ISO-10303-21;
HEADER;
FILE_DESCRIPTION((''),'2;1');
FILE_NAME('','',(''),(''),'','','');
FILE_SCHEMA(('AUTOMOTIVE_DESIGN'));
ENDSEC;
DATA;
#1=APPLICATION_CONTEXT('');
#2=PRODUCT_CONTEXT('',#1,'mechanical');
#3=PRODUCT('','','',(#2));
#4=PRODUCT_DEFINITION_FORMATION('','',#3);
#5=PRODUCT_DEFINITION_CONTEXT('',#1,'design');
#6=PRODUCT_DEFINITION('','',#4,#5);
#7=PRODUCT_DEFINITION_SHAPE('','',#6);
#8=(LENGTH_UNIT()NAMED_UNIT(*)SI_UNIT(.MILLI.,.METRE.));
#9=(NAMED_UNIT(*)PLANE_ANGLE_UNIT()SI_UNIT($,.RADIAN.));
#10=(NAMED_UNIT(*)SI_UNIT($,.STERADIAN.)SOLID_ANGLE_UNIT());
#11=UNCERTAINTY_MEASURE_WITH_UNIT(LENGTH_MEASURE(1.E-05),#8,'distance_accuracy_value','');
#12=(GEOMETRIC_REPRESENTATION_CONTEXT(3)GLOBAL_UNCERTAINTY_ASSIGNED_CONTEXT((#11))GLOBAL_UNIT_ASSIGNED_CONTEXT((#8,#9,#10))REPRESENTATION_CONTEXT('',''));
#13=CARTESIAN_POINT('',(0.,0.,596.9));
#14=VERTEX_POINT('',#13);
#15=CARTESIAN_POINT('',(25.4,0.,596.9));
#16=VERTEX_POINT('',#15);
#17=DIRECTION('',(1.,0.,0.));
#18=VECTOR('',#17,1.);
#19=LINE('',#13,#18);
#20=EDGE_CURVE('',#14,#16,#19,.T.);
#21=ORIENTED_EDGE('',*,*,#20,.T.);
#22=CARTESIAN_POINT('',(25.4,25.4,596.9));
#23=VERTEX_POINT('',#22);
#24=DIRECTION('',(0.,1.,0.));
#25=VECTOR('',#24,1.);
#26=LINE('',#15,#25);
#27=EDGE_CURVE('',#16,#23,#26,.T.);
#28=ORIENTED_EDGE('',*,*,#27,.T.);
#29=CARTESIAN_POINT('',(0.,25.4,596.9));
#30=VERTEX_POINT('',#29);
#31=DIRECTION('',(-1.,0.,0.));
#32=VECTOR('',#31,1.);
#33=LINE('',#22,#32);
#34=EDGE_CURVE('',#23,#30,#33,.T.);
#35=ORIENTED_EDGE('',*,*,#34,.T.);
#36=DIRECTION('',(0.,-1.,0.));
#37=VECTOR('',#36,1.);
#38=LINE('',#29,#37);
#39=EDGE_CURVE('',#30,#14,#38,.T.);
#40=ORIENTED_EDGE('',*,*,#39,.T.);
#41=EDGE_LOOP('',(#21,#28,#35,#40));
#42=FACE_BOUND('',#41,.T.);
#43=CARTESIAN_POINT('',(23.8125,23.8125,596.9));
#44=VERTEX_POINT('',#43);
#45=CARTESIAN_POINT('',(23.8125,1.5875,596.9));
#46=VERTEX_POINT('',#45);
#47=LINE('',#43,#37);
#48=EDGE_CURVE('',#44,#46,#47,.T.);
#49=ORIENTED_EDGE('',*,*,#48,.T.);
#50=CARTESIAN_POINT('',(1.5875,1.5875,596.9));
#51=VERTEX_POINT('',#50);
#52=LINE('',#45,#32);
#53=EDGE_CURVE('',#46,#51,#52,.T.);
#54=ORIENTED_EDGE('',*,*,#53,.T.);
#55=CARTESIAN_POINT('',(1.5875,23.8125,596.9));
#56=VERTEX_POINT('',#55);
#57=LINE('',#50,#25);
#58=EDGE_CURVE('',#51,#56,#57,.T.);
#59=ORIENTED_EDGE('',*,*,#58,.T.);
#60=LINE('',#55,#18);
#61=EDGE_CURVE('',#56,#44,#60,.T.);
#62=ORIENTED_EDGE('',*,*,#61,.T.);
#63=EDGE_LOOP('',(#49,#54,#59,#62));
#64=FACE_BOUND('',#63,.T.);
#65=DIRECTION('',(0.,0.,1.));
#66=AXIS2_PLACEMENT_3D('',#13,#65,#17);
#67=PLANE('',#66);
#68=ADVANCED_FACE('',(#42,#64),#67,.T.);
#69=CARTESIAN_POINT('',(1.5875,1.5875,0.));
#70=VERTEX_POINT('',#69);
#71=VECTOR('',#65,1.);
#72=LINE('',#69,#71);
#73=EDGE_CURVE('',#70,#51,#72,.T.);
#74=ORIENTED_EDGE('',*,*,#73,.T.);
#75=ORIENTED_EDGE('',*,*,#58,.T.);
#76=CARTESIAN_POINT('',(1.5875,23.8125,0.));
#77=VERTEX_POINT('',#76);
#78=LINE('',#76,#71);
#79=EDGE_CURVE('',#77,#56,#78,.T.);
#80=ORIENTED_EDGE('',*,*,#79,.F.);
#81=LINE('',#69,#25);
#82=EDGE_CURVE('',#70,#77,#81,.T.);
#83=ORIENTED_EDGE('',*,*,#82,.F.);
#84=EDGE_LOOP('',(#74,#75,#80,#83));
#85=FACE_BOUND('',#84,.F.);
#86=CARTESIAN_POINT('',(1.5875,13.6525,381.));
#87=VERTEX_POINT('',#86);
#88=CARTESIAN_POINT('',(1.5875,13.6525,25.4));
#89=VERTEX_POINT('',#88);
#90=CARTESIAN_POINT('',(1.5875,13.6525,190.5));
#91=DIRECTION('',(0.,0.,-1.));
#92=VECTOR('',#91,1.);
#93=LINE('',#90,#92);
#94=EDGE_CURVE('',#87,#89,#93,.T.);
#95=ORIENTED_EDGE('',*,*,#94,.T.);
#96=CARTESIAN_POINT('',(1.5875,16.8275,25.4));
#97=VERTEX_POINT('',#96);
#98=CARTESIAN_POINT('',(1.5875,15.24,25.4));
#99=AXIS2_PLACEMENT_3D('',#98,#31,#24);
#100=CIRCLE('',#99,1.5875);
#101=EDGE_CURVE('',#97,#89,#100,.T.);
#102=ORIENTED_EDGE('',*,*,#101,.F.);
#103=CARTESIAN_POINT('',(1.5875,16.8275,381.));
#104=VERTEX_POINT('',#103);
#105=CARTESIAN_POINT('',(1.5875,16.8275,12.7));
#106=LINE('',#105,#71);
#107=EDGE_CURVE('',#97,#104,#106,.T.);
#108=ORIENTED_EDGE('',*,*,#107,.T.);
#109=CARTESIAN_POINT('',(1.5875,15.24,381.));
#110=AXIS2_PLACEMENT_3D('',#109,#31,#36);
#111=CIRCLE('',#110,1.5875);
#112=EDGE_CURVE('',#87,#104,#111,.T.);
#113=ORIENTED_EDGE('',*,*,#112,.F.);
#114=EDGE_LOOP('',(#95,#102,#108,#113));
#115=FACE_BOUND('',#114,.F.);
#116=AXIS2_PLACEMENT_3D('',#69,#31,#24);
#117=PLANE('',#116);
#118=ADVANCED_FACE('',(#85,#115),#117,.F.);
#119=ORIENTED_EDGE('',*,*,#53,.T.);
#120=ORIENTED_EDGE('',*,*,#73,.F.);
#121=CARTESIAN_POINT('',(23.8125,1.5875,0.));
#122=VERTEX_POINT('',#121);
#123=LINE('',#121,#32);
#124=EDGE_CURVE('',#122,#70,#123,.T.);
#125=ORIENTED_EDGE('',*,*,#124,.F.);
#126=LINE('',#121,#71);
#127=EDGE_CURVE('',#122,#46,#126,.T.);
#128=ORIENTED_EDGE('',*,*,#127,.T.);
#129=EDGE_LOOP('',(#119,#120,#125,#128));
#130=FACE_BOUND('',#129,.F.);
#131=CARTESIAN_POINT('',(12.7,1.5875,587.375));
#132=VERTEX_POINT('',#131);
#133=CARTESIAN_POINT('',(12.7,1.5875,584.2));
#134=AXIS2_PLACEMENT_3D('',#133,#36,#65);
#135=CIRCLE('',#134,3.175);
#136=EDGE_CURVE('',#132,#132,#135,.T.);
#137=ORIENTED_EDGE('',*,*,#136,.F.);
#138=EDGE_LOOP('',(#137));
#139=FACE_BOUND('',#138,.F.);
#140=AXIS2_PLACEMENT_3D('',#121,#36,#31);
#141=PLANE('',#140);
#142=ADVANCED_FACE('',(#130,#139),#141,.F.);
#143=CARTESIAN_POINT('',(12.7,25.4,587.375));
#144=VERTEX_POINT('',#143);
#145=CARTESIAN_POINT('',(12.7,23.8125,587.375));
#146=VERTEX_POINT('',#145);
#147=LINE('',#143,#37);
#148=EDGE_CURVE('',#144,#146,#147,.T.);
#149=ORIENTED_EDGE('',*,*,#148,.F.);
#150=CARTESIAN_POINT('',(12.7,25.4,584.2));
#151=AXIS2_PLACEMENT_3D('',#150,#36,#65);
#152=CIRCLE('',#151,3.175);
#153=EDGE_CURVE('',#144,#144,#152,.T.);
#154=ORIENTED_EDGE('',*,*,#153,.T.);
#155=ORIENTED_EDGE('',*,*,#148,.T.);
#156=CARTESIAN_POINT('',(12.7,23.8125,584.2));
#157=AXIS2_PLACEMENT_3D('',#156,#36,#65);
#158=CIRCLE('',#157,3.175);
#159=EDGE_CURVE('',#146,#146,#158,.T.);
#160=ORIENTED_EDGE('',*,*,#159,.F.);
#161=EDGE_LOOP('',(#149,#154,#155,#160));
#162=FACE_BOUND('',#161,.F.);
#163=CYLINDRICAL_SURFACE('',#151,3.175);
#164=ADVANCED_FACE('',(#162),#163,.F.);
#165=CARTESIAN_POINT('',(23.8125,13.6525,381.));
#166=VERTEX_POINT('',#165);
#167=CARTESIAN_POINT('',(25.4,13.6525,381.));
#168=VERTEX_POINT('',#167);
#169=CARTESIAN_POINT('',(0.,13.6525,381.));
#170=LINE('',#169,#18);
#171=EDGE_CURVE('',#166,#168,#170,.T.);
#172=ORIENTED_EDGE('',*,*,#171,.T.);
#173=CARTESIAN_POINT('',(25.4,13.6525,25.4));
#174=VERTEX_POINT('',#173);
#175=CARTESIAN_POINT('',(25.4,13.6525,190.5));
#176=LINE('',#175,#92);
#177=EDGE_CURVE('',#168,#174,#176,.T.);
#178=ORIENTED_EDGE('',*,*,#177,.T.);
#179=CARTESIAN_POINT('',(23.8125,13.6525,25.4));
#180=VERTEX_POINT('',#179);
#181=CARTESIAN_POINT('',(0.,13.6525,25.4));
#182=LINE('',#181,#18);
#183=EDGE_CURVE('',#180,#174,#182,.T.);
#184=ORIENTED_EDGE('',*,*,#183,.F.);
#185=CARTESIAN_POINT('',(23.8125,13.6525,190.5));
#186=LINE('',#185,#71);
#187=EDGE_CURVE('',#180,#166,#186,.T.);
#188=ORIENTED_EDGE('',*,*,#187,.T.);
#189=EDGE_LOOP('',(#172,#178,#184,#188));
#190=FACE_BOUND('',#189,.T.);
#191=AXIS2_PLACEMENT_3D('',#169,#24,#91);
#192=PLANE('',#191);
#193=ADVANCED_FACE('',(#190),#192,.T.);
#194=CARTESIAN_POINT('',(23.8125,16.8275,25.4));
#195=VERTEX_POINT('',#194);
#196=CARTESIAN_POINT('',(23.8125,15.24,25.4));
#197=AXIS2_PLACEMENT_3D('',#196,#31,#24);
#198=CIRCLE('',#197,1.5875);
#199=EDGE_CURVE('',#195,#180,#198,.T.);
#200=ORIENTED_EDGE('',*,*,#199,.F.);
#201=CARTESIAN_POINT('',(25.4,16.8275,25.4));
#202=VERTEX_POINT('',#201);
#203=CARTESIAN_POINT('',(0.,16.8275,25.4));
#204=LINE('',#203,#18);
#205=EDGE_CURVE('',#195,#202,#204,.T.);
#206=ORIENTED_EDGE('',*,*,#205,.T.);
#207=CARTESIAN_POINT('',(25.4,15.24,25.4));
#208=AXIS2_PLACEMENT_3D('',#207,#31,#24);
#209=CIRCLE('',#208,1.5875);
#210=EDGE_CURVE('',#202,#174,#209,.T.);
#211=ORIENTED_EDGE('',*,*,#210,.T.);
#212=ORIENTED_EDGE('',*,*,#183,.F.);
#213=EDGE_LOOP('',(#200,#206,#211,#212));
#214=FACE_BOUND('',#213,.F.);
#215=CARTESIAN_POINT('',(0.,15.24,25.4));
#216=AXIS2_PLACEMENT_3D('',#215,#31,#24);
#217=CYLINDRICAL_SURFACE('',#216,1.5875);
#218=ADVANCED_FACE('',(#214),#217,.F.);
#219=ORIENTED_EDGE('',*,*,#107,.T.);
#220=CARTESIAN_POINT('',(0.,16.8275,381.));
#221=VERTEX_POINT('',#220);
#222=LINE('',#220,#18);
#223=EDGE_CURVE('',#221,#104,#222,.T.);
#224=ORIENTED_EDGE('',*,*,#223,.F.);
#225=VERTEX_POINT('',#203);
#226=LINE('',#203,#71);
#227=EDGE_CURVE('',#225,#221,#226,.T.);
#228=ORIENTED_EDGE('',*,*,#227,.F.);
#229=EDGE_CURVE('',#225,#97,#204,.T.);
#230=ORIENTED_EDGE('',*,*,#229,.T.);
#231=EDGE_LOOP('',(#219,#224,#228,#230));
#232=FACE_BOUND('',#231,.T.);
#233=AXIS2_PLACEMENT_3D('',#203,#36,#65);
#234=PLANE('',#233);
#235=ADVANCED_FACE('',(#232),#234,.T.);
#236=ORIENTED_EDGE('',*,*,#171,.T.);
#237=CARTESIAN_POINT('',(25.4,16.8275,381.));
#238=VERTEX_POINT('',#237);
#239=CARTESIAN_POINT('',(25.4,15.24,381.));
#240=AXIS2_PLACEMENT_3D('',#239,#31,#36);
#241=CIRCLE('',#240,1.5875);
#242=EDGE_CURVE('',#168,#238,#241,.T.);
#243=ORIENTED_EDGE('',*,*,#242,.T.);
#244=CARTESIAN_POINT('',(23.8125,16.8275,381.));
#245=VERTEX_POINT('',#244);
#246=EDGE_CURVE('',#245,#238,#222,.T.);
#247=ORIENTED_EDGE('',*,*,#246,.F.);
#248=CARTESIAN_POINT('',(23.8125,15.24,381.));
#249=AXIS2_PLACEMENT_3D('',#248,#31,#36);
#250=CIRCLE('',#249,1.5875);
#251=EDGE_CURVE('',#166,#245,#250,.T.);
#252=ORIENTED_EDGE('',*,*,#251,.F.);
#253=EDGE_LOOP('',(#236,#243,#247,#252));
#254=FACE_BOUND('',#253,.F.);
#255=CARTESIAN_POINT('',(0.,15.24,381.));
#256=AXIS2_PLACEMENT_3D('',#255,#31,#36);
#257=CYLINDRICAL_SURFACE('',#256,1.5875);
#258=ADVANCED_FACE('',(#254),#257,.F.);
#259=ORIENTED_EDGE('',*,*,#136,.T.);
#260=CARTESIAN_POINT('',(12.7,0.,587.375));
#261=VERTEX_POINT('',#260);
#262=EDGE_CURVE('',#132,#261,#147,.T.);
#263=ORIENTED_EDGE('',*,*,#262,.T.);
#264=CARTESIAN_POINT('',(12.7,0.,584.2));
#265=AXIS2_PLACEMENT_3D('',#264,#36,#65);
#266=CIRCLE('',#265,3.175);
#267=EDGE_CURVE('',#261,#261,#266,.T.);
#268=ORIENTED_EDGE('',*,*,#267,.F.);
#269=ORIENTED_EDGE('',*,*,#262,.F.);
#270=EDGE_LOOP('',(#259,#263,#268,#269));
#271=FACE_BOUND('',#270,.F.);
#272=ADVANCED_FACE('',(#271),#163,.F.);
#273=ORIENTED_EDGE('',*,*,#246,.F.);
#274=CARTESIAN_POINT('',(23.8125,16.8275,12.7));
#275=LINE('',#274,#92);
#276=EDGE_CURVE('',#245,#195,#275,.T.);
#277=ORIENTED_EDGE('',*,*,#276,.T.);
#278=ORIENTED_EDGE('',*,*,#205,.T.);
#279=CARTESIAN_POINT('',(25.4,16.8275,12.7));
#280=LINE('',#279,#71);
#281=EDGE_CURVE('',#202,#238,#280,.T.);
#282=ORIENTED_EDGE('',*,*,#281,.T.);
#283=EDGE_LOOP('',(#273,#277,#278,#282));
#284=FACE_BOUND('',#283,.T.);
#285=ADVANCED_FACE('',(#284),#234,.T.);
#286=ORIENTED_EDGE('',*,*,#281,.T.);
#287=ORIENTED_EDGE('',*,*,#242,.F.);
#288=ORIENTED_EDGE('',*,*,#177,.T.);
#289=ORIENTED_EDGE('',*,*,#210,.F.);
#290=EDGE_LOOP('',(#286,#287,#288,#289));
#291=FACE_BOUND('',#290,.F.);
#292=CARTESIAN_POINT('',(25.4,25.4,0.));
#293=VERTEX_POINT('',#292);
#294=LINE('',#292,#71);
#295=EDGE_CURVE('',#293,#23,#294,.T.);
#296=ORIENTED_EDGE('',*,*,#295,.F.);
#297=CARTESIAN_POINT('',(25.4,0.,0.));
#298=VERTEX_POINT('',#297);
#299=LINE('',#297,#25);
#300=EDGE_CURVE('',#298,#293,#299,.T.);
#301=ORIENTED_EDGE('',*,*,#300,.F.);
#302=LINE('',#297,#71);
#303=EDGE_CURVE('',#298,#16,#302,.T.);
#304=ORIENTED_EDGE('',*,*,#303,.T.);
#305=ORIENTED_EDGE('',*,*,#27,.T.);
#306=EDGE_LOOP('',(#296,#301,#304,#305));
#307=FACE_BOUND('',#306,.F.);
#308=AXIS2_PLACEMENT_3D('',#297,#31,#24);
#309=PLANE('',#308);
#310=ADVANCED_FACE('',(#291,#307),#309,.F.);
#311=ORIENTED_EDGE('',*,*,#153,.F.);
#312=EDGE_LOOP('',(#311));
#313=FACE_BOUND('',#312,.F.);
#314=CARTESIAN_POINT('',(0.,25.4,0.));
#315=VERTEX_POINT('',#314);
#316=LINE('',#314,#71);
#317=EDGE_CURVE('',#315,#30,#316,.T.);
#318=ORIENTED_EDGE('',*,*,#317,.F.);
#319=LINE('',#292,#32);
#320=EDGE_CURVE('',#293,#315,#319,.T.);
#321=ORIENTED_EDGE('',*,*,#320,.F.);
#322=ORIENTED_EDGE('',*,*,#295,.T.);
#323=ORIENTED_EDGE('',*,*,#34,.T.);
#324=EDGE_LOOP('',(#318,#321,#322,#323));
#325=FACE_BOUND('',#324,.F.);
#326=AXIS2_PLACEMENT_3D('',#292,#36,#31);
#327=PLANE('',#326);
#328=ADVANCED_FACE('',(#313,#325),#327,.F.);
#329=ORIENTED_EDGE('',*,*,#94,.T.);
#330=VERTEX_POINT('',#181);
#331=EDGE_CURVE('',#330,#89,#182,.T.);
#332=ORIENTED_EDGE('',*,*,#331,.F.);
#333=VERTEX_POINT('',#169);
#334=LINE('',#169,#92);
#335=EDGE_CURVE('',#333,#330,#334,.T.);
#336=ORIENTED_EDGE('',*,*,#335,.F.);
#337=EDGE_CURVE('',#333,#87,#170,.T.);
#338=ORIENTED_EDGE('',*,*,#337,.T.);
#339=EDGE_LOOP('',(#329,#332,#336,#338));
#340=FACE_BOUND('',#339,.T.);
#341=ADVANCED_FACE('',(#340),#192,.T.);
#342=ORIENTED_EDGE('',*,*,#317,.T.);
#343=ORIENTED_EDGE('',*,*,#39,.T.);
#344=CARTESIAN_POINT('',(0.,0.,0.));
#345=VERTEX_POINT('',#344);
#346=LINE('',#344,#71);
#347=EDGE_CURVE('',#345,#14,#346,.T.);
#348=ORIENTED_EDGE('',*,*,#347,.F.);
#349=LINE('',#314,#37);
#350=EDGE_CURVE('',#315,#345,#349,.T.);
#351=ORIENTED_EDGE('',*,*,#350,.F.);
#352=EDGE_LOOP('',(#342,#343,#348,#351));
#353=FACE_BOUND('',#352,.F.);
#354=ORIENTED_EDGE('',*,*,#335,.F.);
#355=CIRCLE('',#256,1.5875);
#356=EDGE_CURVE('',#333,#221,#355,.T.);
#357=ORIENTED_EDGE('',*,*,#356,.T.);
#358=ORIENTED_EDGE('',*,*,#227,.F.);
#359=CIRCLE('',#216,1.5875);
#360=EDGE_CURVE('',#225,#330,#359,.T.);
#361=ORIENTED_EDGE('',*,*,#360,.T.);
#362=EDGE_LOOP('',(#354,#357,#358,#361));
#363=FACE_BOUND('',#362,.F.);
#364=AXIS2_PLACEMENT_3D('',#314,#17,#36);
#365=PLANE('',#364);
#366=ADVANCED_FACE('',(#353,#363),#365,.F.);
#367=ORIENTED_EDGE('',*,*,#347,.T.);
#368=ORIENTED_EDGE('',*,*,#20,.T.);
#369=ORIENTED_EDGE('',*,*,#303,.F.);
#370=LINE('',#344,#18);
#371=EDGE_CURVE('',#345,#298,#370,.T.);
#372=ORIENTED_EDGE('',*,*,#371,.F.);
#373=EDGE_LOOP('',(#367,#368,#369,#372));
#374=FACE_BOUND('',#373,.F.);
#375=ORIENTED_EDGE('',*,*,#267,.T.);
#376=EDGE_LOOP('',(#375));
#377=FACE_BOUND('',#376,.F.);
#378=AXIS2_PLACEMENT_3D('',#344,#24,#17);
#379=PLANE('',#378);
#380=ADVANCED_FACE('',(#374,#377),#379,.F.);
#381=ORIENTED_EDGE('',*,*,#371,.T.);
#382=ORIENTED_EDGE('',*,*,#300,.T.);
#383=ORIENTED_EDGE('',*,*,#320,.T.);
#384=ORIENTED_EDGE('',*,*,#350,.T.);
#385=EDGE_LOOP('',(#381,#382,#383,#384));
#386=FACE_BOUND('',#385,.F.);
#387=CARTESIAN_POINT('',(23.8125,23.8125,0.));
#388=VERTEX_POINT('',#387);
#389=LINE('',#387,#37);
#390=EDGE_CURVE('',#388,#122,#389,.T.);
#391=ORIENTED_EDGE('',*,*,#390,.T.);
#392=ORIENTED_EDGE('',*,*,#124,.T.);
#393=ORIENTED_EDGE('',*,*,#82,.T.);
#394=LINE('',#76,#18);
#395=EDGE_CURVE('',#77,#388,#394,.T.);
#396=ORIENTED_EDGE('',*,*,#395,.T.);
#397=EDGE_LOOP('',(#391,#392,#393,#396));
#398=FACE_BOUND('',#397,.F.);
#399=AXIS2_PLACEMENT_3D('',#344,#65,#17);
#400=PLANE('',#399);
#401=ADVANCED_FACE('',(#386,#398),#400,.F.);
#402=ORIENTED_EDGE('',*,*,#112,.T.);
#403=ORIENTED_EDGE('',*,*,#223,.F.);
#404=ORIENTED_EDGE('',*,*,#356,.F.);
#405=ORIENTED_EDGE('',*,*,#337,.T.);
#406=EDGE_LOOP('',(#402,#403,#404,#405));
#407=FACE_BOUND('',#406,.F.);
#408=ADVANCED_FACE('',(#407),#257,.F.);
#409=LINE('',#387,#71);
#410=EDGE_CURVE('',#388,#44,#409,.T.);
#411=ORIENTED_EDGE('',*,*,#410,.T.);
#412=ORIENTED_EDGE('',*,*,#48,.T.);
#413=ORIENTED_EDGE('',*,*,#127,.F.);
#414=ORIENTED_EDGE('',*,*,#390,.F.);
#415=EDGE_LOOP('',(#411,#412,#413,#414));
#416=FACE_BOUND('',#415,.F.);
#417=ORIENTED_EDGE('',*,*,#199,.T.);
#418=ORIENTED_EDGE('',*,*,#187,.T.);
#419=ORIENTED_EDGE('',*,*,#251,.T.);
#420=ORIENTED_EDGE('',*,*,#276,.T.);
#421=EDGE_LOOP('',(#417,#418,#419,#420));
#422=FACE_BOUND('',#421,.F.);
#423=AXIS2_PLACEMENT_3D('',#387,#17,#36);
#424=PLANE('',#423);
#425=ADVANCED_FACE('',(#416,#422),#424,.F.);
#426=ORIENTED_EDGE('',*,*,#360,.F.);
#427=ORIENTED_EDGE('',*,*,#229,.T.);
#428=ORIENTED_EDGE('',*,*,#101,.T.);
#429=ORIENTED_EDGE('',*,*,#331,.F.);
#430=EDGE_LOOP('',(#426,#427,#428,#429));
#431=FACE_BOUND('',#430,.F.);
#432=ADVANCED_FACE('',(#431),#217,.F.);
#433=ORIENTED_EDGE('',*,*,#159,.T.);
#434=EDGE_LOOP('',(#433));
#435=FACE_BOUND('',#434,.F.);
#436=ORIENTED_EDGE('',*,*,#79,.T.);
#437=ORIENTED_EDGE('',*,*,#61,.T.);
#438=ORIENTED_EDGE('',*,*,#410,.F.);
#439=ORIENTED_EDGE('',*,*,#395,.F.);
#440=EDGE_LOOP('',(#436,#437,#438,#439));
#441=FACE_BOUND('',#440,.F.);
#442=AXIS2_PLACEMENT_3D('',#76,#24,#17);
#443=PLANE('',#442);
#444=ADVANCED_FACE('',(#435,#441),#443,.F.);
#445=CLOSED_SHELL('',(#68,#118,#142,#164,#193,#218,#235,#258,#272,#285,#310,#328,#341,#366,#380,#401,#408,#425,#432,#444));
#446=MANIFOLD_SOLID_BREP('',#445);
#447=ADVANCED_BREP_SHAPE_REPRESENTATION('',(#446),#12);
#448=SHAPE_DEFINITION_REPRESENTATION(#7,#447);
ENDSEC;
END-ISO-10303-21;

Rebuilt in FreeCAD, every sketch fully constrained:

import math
import FreeCAD as App
import Part
import Sketcher
from FreeCAD import Vector
Q = App.Units.Quantity


def add_polygon(sketch, points):
    """Adds a closed chain of lines whose ends are joined by coincident constraints."""
    first, n = sketch.GeometryCount, len(points)
    for a, b in zip(points, points[1:] + points[:1]):
        sketch.addGeometry(Part.LineSegment(App.Vector(*a, 0), App.Vector(*b, 0)), False)
    for i in range(n):
        sketch.addConstraint(Sketcher.Constraint("Coincident", first + i, 2, first + (i + 1) % n, 1))

doc = App.newDocument("Part")
params = doc.addObject("Spreadsheet::Sheet", "Params")
for row, (alias, value) in enumerate([
    ("sketch1_width", "1 in"),
    ("pad1_length", "23.5 in"),
    ("sketch2_height", "14 in"),
    ("sketch2_radius", "0.0625 in"),
    ("sketch3_diameter", "0.25 in"),
    ("hole_diameter", "0.25 in"),
], start=1):
    params.set(f"A{row}", alias)
    params.set(f"B{row}", "=" + value)
    params.setAlias(f"B{row}", alias)

body = doc.addObject("PartDesign::Body", "Body")

# Sketch on XY plane
sketch1 = doc.addObject("Sketcher::SketchObject", "Sketch")
body.addObject(sketch1)
sketch1.AttachmentSupport = (doc.XY_Plane, [""])
sketch1.MapMode = "FlatFace"
add_polygon(sketch1, [(0, 25.4), (0, 0), (25.4, 0), (25.4, 25.4)])  # lines 0-3
add_polygon(sketch1, [(1.5875, 1.5875), (1.5875, 23.8125), (23.8125, 23.8125), (23.8125, 1.5875)])  # lines 4-7
sketch1.addConstraint([
    Sketcher.Constraint("Vertical", 0),
    Sketcher.Constraint("Horizontal", 1),
    Sketcher.Constraint("Vertical", 2),
    Sketcher.Constraint("Horizontal", 3),
    Sketcher.Constraint("Vertical", 4),
    Sketcher.Constraint("Horizontal", 5),
    Sketcher.Constraint("Vertical", 6),
    Sketcher.Constraint("Horizontal", 7),
    Sketcher.Constraint("Coincident", 0, 2, -1, 1),
    Sketcher.Constraint("Equal", 3, 0),
    Sketcher.Constraint("Equal", 7, 4),
    Sketcher.Constraint("DistanceX", 1, 1, 1, 2, Q("1 in")),
    Sketcher.Constraint("DistanceX", -1, 1, 4, 2, Q("0.0625 in")),
    Sketcher.Constraint("DistanceY", -1, 1, 6, 2, Q("0.0625 in")),
    Sketcher.Constraint("DistanceY", 4, 2, 3, 2, Q("0.0625 in")),
])
sketch1.setExpression("Constraints[19]", "Params.sketch1_width")
pad1 = doc.addObject("PartDesign::Pad", "Pad")
body.addObject(pad1)
pad1.Profile = sketch1
pad1.setExpression("Length", "Params.pad1_length")

# Sketch on YZ plane
sketch2 = doc.addObject("Sketcher::SketchObject", "Sketch001")
body.addObject(sketch2)
sketch2.AttachmentSupport = (doc.YZ_Plane, [""])
sketch2.MapMode = "FlatFace"
sketch2.addGeometry([
    Part.LineSegment(Vector(16.8275, 381, 0), Vector(16.8275, 25.4, 0)),
    Part.ArcOfCircle(Part.Circle(Vector(15.24, 25.4, 0), Vector(0, 0, 1), 1.5875), math.radians(180), math.radians(360)),
    Part.LineSegment(Vector(13.6525, 25.4, 0), Vector(13.6525, 381, 0)),
    Part.ArcOfCircle(Part.Circle(Vector(15.24, 381, 0), Vector(0, 0, 1), 1.5875), math.radians(0), math.radians(180)),
], False)
sketch2.addConstraint([
    Sketcher.Constraint("Tangent", 0, 2, 1, 2),
    Sketcher.Constraint("Tangent", 1, 1, 2, 1),
    Sketcher.Constraint("Tangent", 2, 2, 3, 2),
    Sketcher.Constraint("Tangent", 3, 1, 0, 1),
    Sketcher.Constraint("Vertical", 0),
    Sketcher.Constraint("Vertical", 2),
    Sketcher.Constraint("DistanceY", 0, 2, 0, 1, Q("14 in")),
    Sketcher.Constraint("DistanceY", -1, 1, 1, 3, Q("1 in")),
    Sketcher.Constraint("Radius", 1, Q("0.0625 in")),
    Sketcher.Constraint("DistanceX", -1, 1, 1, 3, Q("0.6 in")),
])
sketch2.setExpression("Constraints[6]", "Params.sketch2_height")
sketch2.setExpression("Constraints[8]", "Params.sketch2_radius")
pocket1 = doc.addObject("PartDesign::Pocket", "Pocket")
body.addObject(pocket1)
pocket1.Profile = sketch2
pocket1.Type = "ThroughAll"
pocket1.Reversed = True

# Sketch on XZ plane
sketch3 = doc.addObject("Sketcher::SketchObject", "Sketch002")
body.addObject(sketch3)
sketch3.AttachmentSupport = (doc.XZ_Plane, [""])
sketch3.MapMode = "FlatFace"
sketch3.AttachmentOffset = App.Placement(Vector(0, 0, -1 * 25.4), App.Rotation())
sketch3.addGeometry(Part.Circle(Vector(12.7, 584.2, 0), Vector(0, 0, 1), 3.175), False)
sketch3.addConstraint([
    Sketcher.Constraint("Diameter", 0, Q("0.25 in")),
    Sketcher.Constraint("DistanceY", -1, 1, 0, 3, Q("23 in")),
    Sketcher.Constraint("DistanceX", -1, 1, 0, 3, Q("0.5 in")),
])
sketch3.setExpression("Constraints[0]", "Params.sketch3_diameter")
doc.recompute()
hole = doc.addObject("PartDesign::Hole", "Hole")
body.addObject(hole)
hole.Profile = sketch3
hole.ThreadType = "None"
hole.setExpression("Diameter", "Params.hole_diameter")
hole.DepthType = "ThroughAll"
hole.Reversed = True

doc.recompute()
